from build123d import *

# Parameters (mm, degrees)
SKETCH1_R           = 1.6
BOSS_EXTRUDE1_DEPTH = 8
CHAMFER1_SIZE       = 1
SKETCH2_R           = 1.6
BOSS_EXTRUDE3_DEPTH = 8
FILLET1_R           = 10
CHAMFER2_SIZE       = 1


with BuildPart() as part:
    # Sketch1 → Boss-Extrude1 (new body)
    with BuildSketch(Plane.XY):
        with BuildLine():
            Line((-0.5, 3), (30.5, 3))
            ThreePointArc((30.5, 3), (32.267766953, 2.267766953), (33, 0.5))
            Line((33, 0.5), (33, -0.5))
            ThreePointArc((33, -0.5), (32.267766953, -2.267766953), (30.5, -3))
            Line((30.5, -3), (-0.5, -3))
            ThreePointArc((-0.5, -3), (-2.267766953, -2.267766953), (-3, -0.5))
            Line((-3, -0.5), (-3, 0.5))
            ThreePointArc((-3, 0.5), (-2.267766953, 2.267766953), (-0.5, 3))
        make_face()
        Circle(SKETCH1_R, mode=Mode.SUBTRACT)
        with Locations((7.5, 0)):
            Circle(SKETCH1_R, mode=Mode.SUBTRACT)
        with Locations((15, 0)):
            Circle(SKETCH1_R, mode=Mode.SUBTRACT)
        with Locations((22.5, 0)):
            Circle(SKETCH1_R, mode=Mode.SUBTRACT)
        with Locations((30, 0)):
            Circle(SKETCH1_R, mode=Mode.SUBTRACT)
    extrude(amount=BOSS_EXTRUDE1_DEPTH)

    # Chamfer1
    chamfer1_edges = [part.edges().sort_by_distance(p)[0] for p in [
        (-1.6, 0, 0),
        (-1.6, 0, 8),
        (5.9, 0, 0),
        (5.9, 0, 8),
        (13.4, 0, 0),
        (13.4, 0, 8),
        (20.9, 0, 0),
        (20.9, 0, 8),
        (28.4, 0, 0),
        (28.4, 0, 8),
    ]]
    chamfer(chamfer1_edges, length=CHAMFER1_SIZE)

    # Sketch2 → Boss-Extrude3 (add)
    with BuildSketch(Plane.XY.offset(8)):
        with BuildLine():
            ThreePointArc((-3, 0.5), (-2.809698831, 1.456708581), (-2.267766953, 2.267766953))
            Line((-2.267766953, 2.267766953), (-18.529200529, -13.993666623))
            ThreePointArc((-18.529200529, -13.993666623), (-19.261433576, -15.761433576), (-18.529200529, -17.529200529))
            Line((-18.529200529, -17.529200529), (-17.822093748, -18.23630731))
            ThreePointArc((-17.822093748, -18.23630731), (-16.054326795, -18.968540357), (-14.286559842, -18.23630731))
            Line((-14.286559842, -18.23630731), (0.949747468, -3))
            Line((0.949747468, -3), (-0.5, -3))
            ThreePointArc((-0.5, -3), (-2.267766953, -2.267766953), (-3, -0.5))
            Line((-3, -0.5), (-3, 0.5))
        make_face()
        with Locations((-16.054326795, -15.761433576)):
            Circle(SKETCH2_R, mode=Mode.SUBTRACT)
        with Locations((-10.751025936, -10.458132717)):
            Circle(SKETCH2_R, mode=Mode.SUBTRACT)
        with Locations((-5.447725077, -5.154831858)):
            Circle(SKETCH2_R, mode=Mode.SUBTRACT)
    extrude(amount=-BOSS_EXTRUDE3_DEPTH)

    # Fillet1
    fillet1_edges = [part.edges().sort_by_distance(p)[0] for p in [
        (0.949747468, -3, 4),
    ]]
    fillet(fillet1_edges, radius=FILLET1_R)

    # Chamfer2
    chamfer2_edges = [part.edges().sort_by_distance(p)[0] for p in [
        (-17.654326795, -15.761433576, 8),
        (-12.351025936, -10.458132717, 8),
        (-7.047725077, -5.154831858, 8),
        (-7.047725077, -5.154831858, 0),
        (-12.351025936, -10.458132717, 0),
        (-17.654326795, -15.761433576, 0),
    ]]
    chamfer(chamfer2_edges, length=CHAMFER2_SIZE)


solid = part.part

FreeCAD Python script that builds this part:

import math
import FreeCAD as App
import Part
import Sketcher
Q = App.Units.Quantity


def edges_at(feature, points):
    """Names of the edges that pass closest to the given points."""
    edges = feature.Shape.Edges
    near = lambda p: min(range(len(edges)), key=lambda i: edges[i].distToShape(Part.Vertex(*p))[0])
    return sorted({f"Edge{near(p) + 1}" for p in points})

doc = App.newDocument("Part")
params = doc.addObject("Spreadsheet::Sheet", "Params")
for row, (alias, value) in enumerate([
    ("sketch1_diameter", "3.2 mm"),
    ("sketch1_radius", "2.5 mm"),
    ("sketch1_width", "31 mm"),
    ("sketch1_height", "1 mm"),
    ("pad1_length", "8 mm"),
    ("chamfer_size", "1 mm"),
    ("sketch2_diameter", "3.2 mm"),
    ("sketch2_radius", "2.5 mm"),
    ("sketch2_height", "1 mm"),
    ("sketch2_length", "1 mm"),
    ("pad2_length", "8 mm"),
    ("fillet_radius", "10 mm"),
    ("chamfer2_size", "1 mm"),
], start=1):
    params.set(f"A{row}", alias)
    params.set(f"B{row}", "=" + value)
    params.setAlias(f"B{row}", alias)

body = doc.addObject("PartDesign::Body", "Body")

sketch1 = body.newObject("Sketcher::SketchObject", "Sketch")
sketch1.AttachmentSupport = (doc.getObject("XY_Plane"), [""])
sketch1.MapMode = "FlatFace"
sketch1.addGeometry([
    Part.LineSegment(App.Vector(30.5, 3, 0), App.Vector(-0.5, 3, 0)),
    Part.ArcOfCircle(Part.Circle(App.Vector(-0.5, 0.5, 0), App.Vector(0, 0, 1), 2.5), math.radians(90), math.radians(180)),
    Part.LineSegment(App.Vector(-3, 0.5, 0), App.Vector(-3, -0.5, 0)),
    Part.ArcOfCircle(Part.Circle(App.Vector(-0.5, -0.5, 0), App.Vector(0, 0, 1), 2.5), math.radians(180), math.radians(270)),
    Part.LineSegment(App.Vector(-0.5, -3, 0), App.Vector(30.5, -3, 0)),
    Part.ArcOfCircle(Part.Circle(App.Vector(30.5, -0.5, 0), App.Vector(0, 0, 1), 2.5), math.radians(-90), math.radians(0)),
    Part.LineSegment(App.Vector(33, -0.5, 0), App.Vector(33, 0.5, 0)),
    Part.ArcOfCircle(Part.Circle(App.Vector(30.5, 0.5, 0), App.Vector(0, 0, 1), 2.5), math.radians(0), math.radians(90)),
    Part.Circle(App.Vector(30, 0, 0), App.Vector(0, 0, 1), 1.6),
    Part.Circle(App.Vector(22.5, 0, 0), App.Vector(0, 0, 1), 1.6),
    Part.Circle(App.Vector(15, 0, 0), App.Vector(0, 0, 1), 1.6),
    Part.Circle(App.Vector(7.5, 0, 0), App.Vector(0, 0, 1), 1.6),
    Part.Circle(App.Vector(0, 0, 0), App.Vector(0, 0, 1), 1.6),
], False)
sketch1.addConstraint([
    Sketcher.Constraint("Tangent", 0, 2, 1, 1),
    Sketcher.Constraint("Tangent", 1, 2, 2, 1),
    Sketcher.Constraint("Tangent", 2, 2, 3, 1),
    Sketcher.Constraint("Tangent", 3, 2, 4, 1),
    Sketcher.Constraint("Tangent", 4, 2, 5, 1),
    Sketcher.Constraint("Tangent", 5, 2, 6, 1),
    Sketcher.Constraint("Tangent", 6, 2, 7, 1),
    Sketcher.Constraint("Tangent", 7, 2, 0, 1),
    Sketcher.Constraint("Horizontal", 0),
    Sketcher.Constraint("Vertical", 2),
    Sketcher.Constraint("Horizontal", 4),
    Sketcher.Constraint("Vertical", 6),
    Sketcher.Constraint("Coincident", 12, 3, -1, 1),
    Sketcher.Constraint("Equal", 1, 3),
    Sketcher.Constraint("Equal", 3, 5),
    Sketcher.Constraint("Equal", 5, 7),
    Sketcher.Constraint("Equal", 8, 9),
    Sketcher.Constraint("Equal", 9, 10),
    Sketcher.Constraint("Equal", 10, 11),
    Sketcher.Constraint("Equal", 11, 12),
    Sketcher.Constraint("PointOnObject", 8, 3, -1),
    Sketcher.Constraint("PointOnObject", 9, 3, -1),
    Sketcher.Constraint("PointOnObject", 10, 3, -1),
    Sketcher.Constraint("PointOnObject", 11, 3, -1),
    Sketcher.Constraint("Diameter", 8, Q("3.2 mm")),
    Sketcher.Constraint("Radius", 1, Q("2.5 mm")),
    Sketcher.Constraint("DistanceX", 0, 2, 0, 1, Q("31 mm")),
    Sketcher.Constraint("DistanceY", 2, 2, 2, 1, Q("1 mm")),
    Sketcher.Constraint("DistanceX", -1, 1, 8, 3, Q("30 mm")),
    Sketcher.Constraint("DistanceX", -1, 1, 10, 3, Q("15 mm")),
    Sketcher.Constraint("DistanceY", -1, 1, 0, 2, Q("3 mm")),
    Sketcher.Constraint("DistanceX", 1, 2, -1, 1, Q("3 mm")),
    Sketcher.Constraint("DistanceX", 9, 3, 5, 3, Q("8 mm")),
    Sketcher.Constraint("DistanceX", 1, 3, 11, 3, Q("8 mm")),
])
sketch1.setExpression("Constraints[24]", "Params.sketch1_diameter")
sketch1.setExpression("Constraints[25]", "Params.sketch1_radius")
sketch1.setExpression("Constraints[26]", "Params.sketch1_width")
sketch1.setExpression("Constraints[27]", "Params.sketch1_height")
pad1 = body.newObject("PartDesign::Pad", "Pad")
pad1.Profile = sketch1
pad1.setExpression("Length", "Params.pad1_length")
doc.recompute()

chamfer = body.newObject("PartDesign::Chamfer", "Chamfer")
chamfer.Base = (pad1, edges_at(pad1, [
    (-1.6, 0, 0),
    (-1.6, 0, 8),
    (5.9, 0, 0),
    (5.9, 0, 8),
    (13.4, 0, 0),
    (13.4, 0, 8),
    (20.9, 0, 0),
    (20.9, 0, 8),
    (28.4, 0, 0),
    (28.4, 0, 8),
]))
chamfer.setExpression("Size", "Params.chamfer_size")

sketch2 = body.newObject("Sketcher::SketchObject", "Sketch001")
sketch2.AttachmentSupport = (doc.getObject("XY_Plane"), [""])
sketch2.MapMode = "FlatFace"
sketch2.AttachmentOffset = App.Placement(App.Vector(0, 0, 8), App.Rotation())
sketch2.addGeometry([
    Part.ArcOfCircle(Part.Circle(App.Vector(-0.5, 0.5, 0), App.Vector(0, 0, 1), 2.5), math.radians(135), math.radians(180)),
    Part.LineSegment(App.Vector(-2.3, 2.3, 0), App.Vector(-18.5, -14, 0)),
    Part.ArcOfCircle(Part.Circle(App.Vector(-16.8, -15.8, 0), App.Vector(0, 0, 1), 2.5), math.radians(135), math.radians(225)),
    Part.LineSegment(App.Vector(-18.5, -17.5, 0), App.Vector(-17.8, -18.2, 0)),
    Part.ArcOfCircle(Part.Circle(App.Vector(-16.1, -16.5, 0), App.Vector(0, 0, 1), 2.5), math.radians(-135), math.radians(-45)),
    Part.LineSegment(App.Vector(-14.3, -18.2, 0), App.Vector(0.9, -3, 0)),
    Part.LineSegment(App.Vector(0.9, -3, 0), App.Vector(-0.5, -3, 0)),
    Part.ArcOfCircle(Part.Circle(App.Vector(-0.5, -0.5, 0), App.Vector(0, 0, 1), 2.5), math.radians(180), math.radians(270)),
    Part.LineSegment(App.Vector(-3, -0.5, 0), App.Vector(-3, 0.5, 0)),
    Part.Circle(App.Vector(-16.1, -15.8, 0), App.Vector(0, 0, 1), 1.6),
    Part.Circle(App.Vector(-10.8, -10.5, 0), App.Vector(0, 0, 1), 1.6),
    Part.Circle(App.Vector(-5.4, -5.2, 0), App.Vector(0, 0, 1), 1.6),
], False)
sketch2.addConstraint([
    Sketcher.Constraint("Tangent", 0, 1, 1, 1),
    Sketcher.Constraint("Tangent", 1, 2, 2, 1),
    Sketcher.Constraint("Tangent", 2, 2, 3, 1),
    Sketcher.Constraint("Tangent", 3, 2, 4, 1),
    Sketcher.Constraint("Tangent", 4, 2, 5, 1),
    Sketcher.Constraint("Coincident", 5, 2, 6, 1),
    Sketcher.Constraint("Tangent", 6, 2, 7, 2),
    Sketcher.Constraint("Tangent", 7, 1, 8, 1),
    Sketcher.Constraint("Tangent", 8, 2, 0, 2),
    Sketcher.Constraint("Horizontal", 6),
    Sketcher.Constraint("Vertical", 8),
    Sketcher.Constraint("Equal", 0, 2),
    Sketcher.Constraint("Equal", 2, 4),
    Sketcher.Constraint("Equal", 4, 7),
    Sketcher.Constraint("Equal", 9, 10),
    Sketcher.Constraint("Equal", 10, 11),
    Sketcher.Constraint("Perpendicular", 1, 3),
    Sketcher.Constraint("Perpendicular", 3, 5),
    Sketcher.Constraint("Horizontal", 2, 3, 9, 3),
    Sketcher.Constraint("Horizontal", 3, 2, 4, 2),
    Sketcher.Constraint("Vertical", 4, 3, 9, 3),
    Sketcher.Constraint("Diameter", 9, Q("3.2 mm")),
    Sketcher.Constraint("Radius", 0, Q("2.5 mm")),
    Sketcher.Constraint("DistanceY", 8, 1, 8, 2, Q("1 mm")),
    Sketcher.Constraint("Distance", 3, Q("1 mm")),
    Sketcher.Constraint("DistanceY", 5, 2, -1, 1, Q("3 mm")),
    Sketcher.Constraint("DistanceX", 7, 1, -1, 1, Q("3 mm")),
    Sketcher.Constraint("DistanceX", 1, 2, -1, 1, Q("18.529201 mm")),
    Sketcher.Constraint("DistanceX", 9, 3, 10, 3, Q("5.303301 mm")),
    Sketcher.Constraint("DistanceY", 9, 3, 10, 3, Q("5.303301 mm")),
    Sketcher.Constraint("DistanceX", 10, 3, 11, 3, Q("5.303301 mm")),
    Sketcher.Constraint("DistanceY", 10, 3, 11, 3, Q("5.303301 mm")),
])
sketch2.setExpression("Constraints[21]", "Params.sketch2_diameter")
sketch2.setExpression("Constraints[22]", "Params.sketch2_radius")
sketch2.setExpression("Constraints[23]", "Params.sketch2_height")
sketch2.setExpression("Constraints[24]", "Params.sketch2_length")
pad2 = body.newObject("PartDesign::Pad", "Pad001")
pad2.Profile = sketch2
pad2.setExpression("Length", "Params.pad2_length")
pad2.Reversed = True
doc.recompute()

fillet = body.newObject("PartDesign::Fillet", "Fillet")
fillet.Base = (pad2, edges_at(pad2, [(0.95, -3, 4)]))
fillet.setExpression("Radius", "Params.fillet_radius")
doc.recompute()

chamfer2 = body.newObject("PartDesign::Chamfer", "Chamfer001")
chamfer2.Base = (fillet, edges_at(fillet, [
    (-17.654, -15.761, 8),
    (-12.351, -10.458, 8),
    (-7.048, -5.155, 8),
    (-7.048, -5.155, 0),
    (-12.351, -10.458, 0),
    (-17.654, -15.761, 0),
]))
chamfer2.setExpression("Size", "Params.chamfer2_size")

doc.recompute()
